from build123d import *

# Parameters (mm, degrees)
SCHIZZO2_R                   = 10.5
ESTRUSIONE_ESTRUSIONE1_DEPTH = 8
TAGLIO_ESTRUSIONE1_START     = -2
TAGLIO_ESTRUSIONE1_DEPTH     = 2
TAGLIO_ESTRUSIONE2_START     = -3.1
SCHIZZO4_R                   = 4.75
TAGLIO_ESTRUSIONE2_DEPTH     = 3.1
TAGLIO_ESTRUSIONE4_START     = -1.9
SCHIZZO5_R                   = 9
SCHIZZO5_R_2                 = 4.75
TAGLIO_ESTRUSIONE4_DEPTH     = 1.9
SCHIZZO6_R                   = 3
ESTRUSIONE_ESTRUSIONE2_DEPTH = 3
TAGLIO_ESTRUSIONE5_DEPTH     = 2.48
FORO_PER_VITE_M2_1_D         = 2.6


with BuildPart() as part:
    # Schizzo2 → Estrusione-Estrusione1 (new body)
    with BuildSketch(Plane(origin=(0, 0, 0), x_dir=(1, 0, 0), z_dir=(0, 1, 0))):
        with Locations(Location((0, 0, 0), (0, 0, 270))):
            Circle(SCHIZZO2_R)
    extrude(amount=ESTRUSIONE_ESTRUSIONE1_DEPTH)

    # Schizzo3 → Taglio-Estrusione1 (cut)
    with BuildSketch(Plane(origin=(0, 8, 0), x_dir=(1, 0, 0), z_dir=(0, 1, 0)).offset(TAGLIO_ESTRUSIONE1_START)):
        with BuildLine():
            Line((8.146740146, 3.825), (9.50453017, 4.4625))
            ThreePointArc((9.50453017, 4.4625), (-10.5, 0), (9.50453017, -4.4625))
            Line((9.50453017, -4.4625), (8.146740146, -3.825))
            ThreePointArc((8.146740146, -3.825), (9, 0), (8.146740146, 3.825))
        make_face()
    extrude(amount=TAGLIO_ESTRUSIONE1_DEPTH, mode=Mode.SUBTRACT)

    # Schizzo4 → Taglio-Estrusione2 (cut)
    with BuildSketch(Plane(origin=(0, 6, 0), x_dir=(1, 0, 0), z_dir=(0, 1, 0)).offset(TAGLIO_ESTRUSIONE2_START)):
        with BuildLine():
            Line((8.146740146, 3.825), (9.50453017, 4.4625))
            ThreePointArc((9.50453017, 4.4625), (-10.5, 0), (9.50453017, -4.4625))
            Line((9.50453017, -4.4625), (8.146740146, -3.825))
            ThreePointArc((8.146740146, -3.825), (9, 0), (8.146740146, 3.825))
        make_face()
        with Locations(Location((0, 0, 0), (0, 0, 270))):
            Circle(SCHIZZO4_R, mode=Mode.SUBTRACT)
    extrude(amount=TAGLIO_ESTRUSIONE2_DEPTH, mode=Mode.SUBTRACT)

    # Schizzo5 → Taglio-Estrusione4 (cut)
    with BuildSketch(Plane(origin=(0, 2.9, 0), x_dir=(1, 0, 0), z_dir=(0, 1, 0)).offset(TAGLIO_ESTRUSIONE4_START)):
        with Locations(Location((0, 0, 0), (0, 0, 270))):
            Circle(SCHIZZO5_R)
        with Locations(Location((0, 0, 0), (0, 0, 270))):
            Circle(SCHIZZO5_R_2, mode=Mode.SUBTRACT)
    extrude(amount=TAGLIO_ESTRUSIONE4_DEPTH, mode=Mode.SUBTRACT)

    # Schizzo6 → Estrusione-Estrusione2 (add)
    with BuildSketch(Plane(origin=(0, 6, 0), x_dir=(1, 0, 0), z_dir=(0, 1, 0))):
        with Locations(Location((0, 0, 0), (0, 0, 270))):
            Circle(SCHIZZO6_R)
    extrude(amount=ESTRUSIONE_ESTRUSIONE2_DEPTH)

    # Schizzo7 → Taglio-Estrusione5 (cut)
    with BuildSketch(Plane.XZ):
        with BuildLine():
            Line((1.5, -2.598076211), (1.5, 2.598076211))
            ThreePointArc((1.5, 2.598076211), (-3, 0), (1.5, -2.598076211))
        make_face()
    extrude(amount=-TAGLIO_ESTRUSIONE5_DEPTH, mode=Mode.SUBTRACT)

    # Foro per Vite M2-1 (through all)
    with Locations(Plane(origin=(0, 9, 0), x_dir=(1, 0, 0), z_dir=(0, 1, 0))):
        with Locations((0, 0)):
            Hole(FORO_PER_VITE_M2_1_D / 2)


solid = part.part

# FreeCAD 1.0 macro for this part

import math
import FreeCAD as App
import Part
import Sketcher
from FreeCAD import Vector
Q = App.Units.Quantity

doc = App.newDocument("Part")
params = doc.addObject("Spreadsheet::Sheet", "Params")
for row, (alias, value) in enumerate([
    ("sketch1_diameter", "21 mm"),
    ("pad1_length", "8 mm"),
    ("sketch2_radius", "9 mm"),
    ("sketch2_radius2", "10.5 mm"),
    ("pocket1_length", "2 mm"),
    ("sketch3_radius", "9 mm"),
    ("sketch3_diameter", "9.5 mm"),
    ("sketch3_radius2", "10.5 mm"),
    ("pocket2_length", "3.1 mm"),
    ("sketch4_diameter", "18 mm"),
    ("sketch4_diameter2", "9.5 mm"),
    ("pocket3_length", "1.9 mm"),
    ("sketch5_diameter", "6 mm"),
    ("pad2_length", "3 mm"),
    ("sketch6_radius", "3 mm"),
    ("pocket4_length", "2.48 mm"),
    ("sketch7_diameter", "2.6 mm"),
    ("hole_diameter", "2.6 mm"),
], start=1):
    params.set(f"A{row}", alias)
    params.set(f"B{row}", "=" + value)
    params.setAlias(f"B{row}", alias)

body = doc.addObject("PartDesign::Body", "Body")

# Sketch on XZ plane
sketch1 = body.newObject("Sketcher::SketchObject", "Sketch")
sketch1.AttachmentSupport = (doc.getObject("XZ_Plane"), [""])
sketch1.MapMode = "FlatFace"
sketch1.addGeometry(Part.Circle(Vector(0, 0, 0), Vector(0, 0, 1), 10), False)
sketch1.addConstraint([
    Sketcher.Constraint("Coincident", 0, 3, -1, 1),
    Sketcher.Constraint("Diameter", 0, Q("21 mm")),
])
sketch1.setExpression("Constraints[1]", "Params.sketch1_diameter")
pad1 = body.newObject("PartDesign::Pad", "Pad")
pad1.Profile = sketch1
pad1.setExpression("Length", "Params.pad1_length")
pad1.Reversed = True

# Sketch on XZ plane
sketch2 = body.newObject("Sketcher::SketchObject", "Sketch001")
sketch2.AttachmentSupport = (doc.getObject("XZ_Plane"), [""])
sketch2.MapMode = "FlatFace"
sketch2.AttachmentOffset = App.Placement(Vector(0, 0, -6), App.Rotation())
sketch2.addGeometry([
    Part.LineSegment(Vector(8.1, -3.8, 0), Vector(9.5, -4.5, 0)),
    Part.ArcOfCircle(Part.Circle(Vector(0, 0, 0), Vector(0, 0, 1), 10.5), math.radians(25), math.radians(335)),
    Part.LineSegment(Vector(9.5, 4.5, 0), Vector(8.1, 3.8, 0)),
    Part.ArcOfCircle(Part.Circle(Vector(0, 0, 0), Vector(0, 0, 1), 9), math.radians(-25), math.radians(25)),
], False)
sketch2.addConstraint([
    Sketcher.Constraint("Coincident", 0, 2, 1, 2),
    Sketcher.Constraint("Coincident", 1, 1, 2, 1),
    Sketcher.Constraint("Coincident", 2, 2, 3, 2),
    Sketcher.Constraint("Coincident", 3, 1, 0, 1),
    Sketcher.Constraint("Coincident", 1, 3, -1, 1),
    Sketcher.Constraint("Coincident", 3, 3, -1, 1),
    Sketcher.Constraint("Vertical", 0, 2, 1, 1),
    Sketcher.Constraint("Vertical", 2, 2, 3, 1),
    Sketcher.Constraint("Radius", 3, Q("9 mm")),
    Sketcher.Constraint("Radius", 1, Q("10.5 mm")),
    Sketcher.Constraint("DistanceY", 3, 1, 2, 2, Q("7.65 mm")),
    Sketcher.Constraint("DistanceY", 0, 2, 1, 1, Q("8.925 mm")),
])
sketch2.setExpression("Constraints[8]", "Params.sketch2_radius")
sketch2.setExpression("Constraints[9]", "Params.sketch2_radius2")
pocket1 = body.newObject("PartDesign::Pocket", "Pocket")
pocket1.Profile = sketch2
pocket1.setExpression("Length", "Params.pocket1_length")

# Sketch on XZ plane
sketch3 = body.newObject("Sketcher::SketchObject", "Sketch002")
sketch3.AttachmentSupport = (doc.getObject("XZ_Plane"), [""])
sketch3.MapMode = "FlatFace"
sketch3.AttachmentOffset = App.Placement(Vector(0, 0, -2.9), App.Rotation())
sketch3.addGeometry([
    Part.LineSegment(Vector(8.1, -3.8, 0), Vector(9.5, -4.5, 0)),  # 0
    Part.ArcOfCircle(Part.Circle(Vector(0, 0, 0), Vector(0, 0, 1), 10.5), math.radians(25), math.radians(335)),  # 1
    Part.LineSegment(Vector(9.5, 4.5, 0), Vector(8.1, 3.8, 0)),  # 2
    Part.ArcOfCircle(Part.Circle(Vector(0, 0, 0), Vector(0, 0, 1), 9), math.radians(-25), math.radians(25)),  # 3
    Part.Circle(Vector(0, 0, 0), Vector(0, 0, 1), 4.8),  # 4
], False)
sketch3.addConstraint([
    Sketcher.Constraint("Coincident", 0, 2, 1, 2),
    Sketcher.Constraint("Coincident", 1, 1, 2, 1),
    Sketcher.Constraint("Coincident", 2, 2, 3, 2),
    Sketcher.Constraint("Coincident", 3, 1, 0, 1),
    Sketcher.Constraint("Coincident", 1, 3, -1, 1),
    Sketcher.Constraint("Coincident", 3, 3, -1, 1),
    Sketcher.Constraint("Coincident", 4, 3, -1, 1),
    Sketcher.Constraint("Vertical", 0, 2, 1, 1),
    Sketcher.Constraint("Vertical", 2, 2, 3, 1),
    Sketcher.Constraint("Radius", 3, Q("9 mm")),
    Sketcher.Constraint("Diameter", 4, Q("9.5 mm")),
    Sketcher.Constraint("Radius", 1, Q("10.5 mm")),
    Sketcher.Constraint("DistanceY", 3, 1, 2, 2, Q("7.65 mm")),
    Sketcher.Constraint("DistanceY", 0, 2, 1, 1, Q("8.925 mm")),
])
sketch3.setExpression("Constraints[9]", "Params.sketch3_radius")
sketch3.setExpression("Constraints[10]", "Params.sketch3_diameter")
sketch3.setExpression("Constraints[11]", "Params.sketch3_radius2")
pocket2 = body.newObject("PartDesign::Pocket", "Pocket001")
pocket2.Profile = sketch3
pocket2.setExpression("Length", "Params.pocket2_length")

# Sketch on XZ plane
sketch4 = body.newObject("Sketcher::SketchObject", "Sketch003")
sketch4.AttachmentSupport = (doc.getObject("XZ_Plane"), [""])
sketch4.MapMode = "FlatFace"
sketch4.AttachmentOffset = App.Placement(Vector(0, 0, -1), App.Rotation())
sketch4.addGeometry([
    Part.Circle(Vector(0, 0, 0), Vector(0, 0, 1), 9),
    Part.Circle(Vector(0, 0, 0), Vector(0, 0, 1), 4.8),
], False)
sketch4.addConstraint([
    Sketcher.Constraint("Coincident", 0, 3, -1, 1),
    Sketcher.Constraint("Coincident", 1, 3, -1, 1),
    Sketcher.Constraint("Diameter", 0, Q("18 mm")),
    Sketcher.Constraint("Diameter", 1, Q("9.5 mm")),
])
sketch4.setExpression("Constraints[2]", "Params.sketch4_diameter")
sketch4.setExpression("Constraints[3]", "Params.sketch4_diameter2")
pocket3 = body.newObject("PartDesign::Pocket", "Pocket002")
pocket3.Profile = sketch4
pocket3.setExpression("Length", "Params.pocket3_length")

# Sketch on XZ plane
sketch5 = body.newObject("Sketcher::SketchObject", "Sketch004")
sketch5.AttachmentSupport = (doc.getObject("XZ_Plane"), [""])
sketch5.MapMode = "FlatFace"
sketch5.AttachmentOffset = App.Placement(Vector(0, 0, -6), App.Rotation())
sketch5.addGeometry(Part.Circle(Vector(0, 0, 0), Vector(0, 0, 1), 3), False)
sketch5.addConstraint([
    Sketcher.Constraint("Coincident", 0, 3, -1, 1),
    Sketcher.Constraint("Diameter", 0, Q("6 mm")),
])
sketch5.setExpression("Constraints[1]", "Params.sketch5_diameter")
pad2 = body.newObject("PartDesign::Pad", "Pad001")
pad2.Profile = sketch5
pad2.setExpression("Length", "Params.pad2_length")
pad2.Reversed = True

# Sketch on XZ plane
sketch6 = body.newObject("Sketcher::SketchObject", "Sketch005")
sketch6.AttachmentSupport = (doc.getObject("XZ_Plane"), [""])
sketch6.MapMode = "FlatFace"
sketch6.addGeometry([
    Part.LineSegment(Vector(1.5, -2.6, 0), Vector(1.5, 2.6, 0)),
    Part.ArcOfCircle(Part.Circle(Vector(0, 0, 0), Vector(0, 0, 1), 3), math.radians(60), math.radians(300)),
], False)
sketch6.addConstraint([
    Sketcher.Constraint("Coincident", 0, 1, 1, 2),
    Sketcher.Constraint("Coincident", 1, 1, 0, 2),
    Sketcher.Constraint("Vertical", 0),
    Sketcher.Constraint("Coincident", 1, 3, -1, 1),
    Sketcher.Constraint("Radius", 1, Q("3 mm")),
    Sketcher.Constraint("DistanceX", -1, 1, 0, 1, Q("1.5 mm")),
])
sketch6.setExpression("Constraints[4]", "Params.sketch6_radius")
pocket4 = body.newObject("PartDesign::Pocket", "Pocket003")
pocket4.Profile = sketch6
pocket4.setExpression("Length", "Params.pocket4_length")

# Sketch on XZ plane
sketch7 = body.newObject("Sketcher::SketchObject", "Sketch006")
sketch7.AttachmentSupport = (doc.getObject("XZ_Plane"), [""])
sketch7.MapMode = "FlatFace"
sketch7.AttachmentOffset = App.Placement(Vector(0, 0, -9), App.Rotation())
sketch7.addGeometry(Part.Circle(Vector(0, 0, 0), Vector(0, 0, 1), 1.3), False)
sketch7.addConstraint([
    Sketcher.Constraint("Coincident", 0, 3, -1, 1),
    Sketcher.Constraint("Diameter", 0, Q("2.6 mm")),
])
sketch7.setExpression("Constraints[1]", "Params.sketch7_diameter")
doc.recompute()
hole = body.newObject("PartDesign::Hole", "Hole")
hole.Profile = sketch7
hole.ThreadType = "None"
hole.setExpression("Diameter", "Params.hole_diameter")
hole.DepthType = "ThroughAll"
hole.Reversed = True

doc.recompute()
